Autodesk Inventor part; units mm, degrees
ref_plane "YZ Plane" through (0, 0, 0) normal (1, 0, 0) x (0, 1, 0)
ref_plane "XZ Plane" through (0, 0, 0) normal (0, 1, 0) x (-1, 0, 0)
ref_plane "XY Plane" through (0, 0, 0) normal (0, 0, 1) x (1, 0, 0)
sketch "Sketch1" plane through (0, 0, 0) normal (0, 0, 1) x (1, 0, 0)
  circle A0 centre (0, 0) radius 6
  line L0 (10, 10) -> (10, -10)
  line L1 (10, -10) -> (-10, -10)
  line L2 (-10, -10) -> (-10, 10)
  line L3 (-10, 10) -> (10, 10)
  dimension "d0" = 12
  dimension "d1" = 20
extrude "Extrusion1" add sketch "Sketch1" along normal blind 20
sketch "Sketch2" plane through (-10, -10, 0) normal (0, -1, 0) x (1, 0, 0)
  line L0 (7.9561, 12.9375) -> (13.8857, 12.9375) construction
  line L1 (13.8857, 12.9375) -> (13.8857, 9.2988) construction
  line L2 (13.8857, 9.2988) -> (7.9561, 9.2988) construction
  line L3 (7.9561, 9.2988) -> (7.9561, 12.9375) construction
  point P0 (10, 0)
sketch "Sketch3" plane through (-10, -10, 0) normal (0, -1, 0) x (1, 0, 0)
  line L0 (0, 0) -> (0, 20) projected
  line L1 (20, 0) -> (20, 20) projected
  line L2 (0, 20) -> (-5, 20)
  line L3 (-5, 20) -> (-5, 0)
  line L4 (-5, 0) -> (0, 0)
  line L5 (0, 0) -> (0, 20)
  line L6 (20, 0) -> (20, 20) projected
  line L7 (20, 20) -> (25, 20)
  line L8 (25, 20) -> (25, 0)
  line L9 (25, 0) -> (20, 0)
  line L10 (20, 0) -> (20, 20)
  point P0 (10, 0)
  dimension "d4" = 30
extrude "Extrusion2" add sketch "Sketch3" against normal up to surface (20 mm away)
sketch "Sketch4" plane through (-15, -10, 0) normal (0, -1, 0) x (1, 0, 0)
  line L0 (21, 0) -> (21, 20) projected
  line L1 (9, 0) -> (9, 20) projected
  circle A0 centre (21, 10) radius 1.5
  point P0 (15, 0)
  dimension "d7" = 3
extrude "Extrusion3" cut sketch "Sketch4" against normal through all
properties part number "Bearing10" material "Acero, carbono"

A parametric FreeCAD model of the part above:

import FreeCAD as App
import Part
import Sketcher
Q = App.Units.Quantity

doc = App.newDocument("Part")
params = doc.addObject("Spreadsheet::Sheet", "Params")
for row, (alias, value) in enumerate([
    ("sketch1_diameter", "12 mm"),
    ("sketch1_width", "20 mm"),
    ("pad1_length", "20 mm"),
    ("sketch2_width", "5 mm"),
    ("sketch2_height", "20 mm"),
    ("pad2_length", "20 mm"),
    ("sketch3_diameter", "3 mm"),
], start=1):
    params.set(f"A{row}", alias)
    params.set(f"B{row}", "=" + value)
    params.setAlias(f"B{row}", alias)

body = doc.addObject("PartDesign::Body", "Body")

# Sketch on XY plane
sketch1 = body.newObject("Sketcher::SketchObject", "Sketch")
sketch1.AttachmentSupport = (doc.getObject("XY_Plane"), [""])
sketch1.MapMode = "FlatFace"
sketch1.addGeometry(Part.LineSegment(App.Vector(10, -10, 0), App.Vector(10, 10, 0)), False)
sketch1.addGeometry(Part.LineSegment(App.Vector(10, 10, 0), App.Vector(-10, 10, 0)), False)
sketch1.addGeometry(Part.LineSegment(App.Vector(-10, 10, 0), App.Vector(-10, -10, 0)), False)
sketch1.addGeometry(Part.LineSegment(App.Vector(-10, -10, 0), App.Vector(10, -10, 0)), False)
sketch1.addGeometry(Part.Circle(App.Vector(0, 0, 0), App.Vector(0, 0, 1), 6), False)
sketch1.addConstraint(Sketcher.Constraint("Coincident", 0, 2, 1, 1))
sketch1.addConstraint(Sketcher.Constraint("Coincident", 1, 2, 2, 1))
sketch1.addConstraint(Sketcher.Constraint("Coincident", 2, 2, 3, 1))
sketch1.addConstraint(Sketcher.Constraint("Coincident", 3, 2, 0, 1))
sketch1.addConstraint(Sketcher.Constraint("Vertical", 0))
sketch1.addConstraint(Sketcher.Constraint("Horizontal", 1))
sketch1.addConstraint(Sketcher.Constraint("Vertical", 2))
sketch1.addConstraint(Sketcher.Constraint("Horizontal", 3))
sketch1.addConstraint(Sketcher.Constraint("Coincident", 4, 3, -1, 1))
sketch1.addConstraint(Sketcher.Constraint("Symmetric", 0, 2, 2, 2, -1, 1))
sketch1.addConstraint(Sketcher.Constraint("Equal", 3, 0))
sketch1.addConstraint(Sketcher.Constraint("Diameter", 4, Q("12 mm")))
sketch1.addConstraint(Sketcher.Constraint("DistanceX", 1, 2, 1, 1, Q("20 mm")))
sketch1.setExpression("Constraints[11]", "Params.sketch1_diameter")
sketch1.setExpression("Constraints[12]", "Params.sketch1_width")
pad1 = body.newObject("PartDesign::Pad", "Pad")
pad1.Profile = sketch1
pad1.setExpression("Length", "Params.pad1_length")

# Sketch on XZ plane
sketch2 = body.newObject("Sketcher::SketchObject", "Sketch001")
sketch2.AttachmentSupport = (doc.getObject("XZ_Plane"), [""])
sketch2.MapMode = "FlatFace"
sketch2.AttachmentOffset = App.Placement(App.Vector(0, 0, 10), App.Rotation())
sketch2.addGeometry(Part.LineSegment(App.Vector(-15, 0, 0), App.Vector(-10, 0, 0)), False)
sketch2.addGeometry(Part.LineSegment(App.Vector(-10, 0, 0), App.Vector(-10, 20, 0)), False)
sketch2.addGeometry(Part.LineSegment(App.Vector(-10, 20, 0), App.Vector(-15, 20, 0)), False)
sketch2.addGeometry(Part.LineSegment(App.Vector(-15, 20, 0), App.Vector(-15, 0, 0)), False)
sketch2.addGeometry(Part.LineSegment(App.Vector(10, 20, 0), App.Vector(10, 0, 0)), False)
sketch2.addGeometry(Part.LineSegment(App.Vector(10, 0, 0), App.Vector(15, 0, 0)), False)
sketch2.addGeometry(Part.LineSegment(App.Vector(15, 0, 0), App.Vector(15, 20, 0)), False)
sketch2.addGeometry(Part.LineSegment(App.Vector(15, 20, 0), App.Vector(10, 20, 0)), False)
sketch2.addConstraint(Sketcher.Constraint("Coincident", 0, 2, 1, 1))
sketch2.addConstraint(Sketcher.Constraint("Coincident", 1, 2, 2, 1))
sketch2.addConstraint(Sketcher.Constraint("Coincident", 2, 2, 3, 1))
sketch2.addConstraint(Sketcher.Constraint("Coincident", 3, 2, 0, 1))
sketch2.addConstraint(Sketcher.Constraint("Coincident", 4, 2, 5, 1))
sketch2.addConstraint(Sketcher.Constraint("Coincident", 5, 2, 6, 1))
sketch2.addConstraint(Sketcher.Constraint("Coincident", 6, 2, 7, 1))
sketch2.addConstraint(Sketcher.Constraint("Coincident", 7, 2, 4, 1))
sketch2.addConstraint(Sketcher.Constraint("Horizontal", 0))
sketch2.addConstraint(Sketcher.Constraint("Vertical", 1))
sketch2.addConstraint(Sketcher.Constraint("Horizontal", 2))
sketch2.addConstraint(Sketcher.Constraint("Vertical", 3))
sketch2.addConstraint(Sketcher.Constraint("Vertical", 4))
sketch2.addConstraint(Sketcher.Constraint("Horizontal", 5))
sketch2.addConstraint(Sketcher.Constraint("Vertical", 6))
sketch2.addConstraint(Sketcher.Constraint("Horizontal", 7))
sketch2.addConstraint(Sketcher.Constraint("Symmetric", 0, 2, 4, 2, -1, 1))
sketch2.addConstraint(Sketcher.Constraint("Symmetric", 3, 2, 5, 2, -2))
sketch2.addConstraint(Sketcher.Constraint("Horizontal", 2, 2, 6, 2))
sketch2.addConstraint(Sketcher.Constraint("DistanceX", 3, 2, 5, 2, Q("30 mm")))
sketch2.addConstraint(Sketcher.Constraint("DistanceX", 0, 1, 0, 2, Q("5 mm")))
sketch2.addConstraint(Sketcher.Constraint("DistanceY", 1, 1, 1, 2, Q("20 mm")))
sketch2.setExpression("Constraints[20]", "Params.sketch2_width")
sketch2.setExpression("Constraints[21]", "Params.sketch2_height")
pad2 = body.newObject("PartDesign::Pad", "Pad001")
pad2.Profile = sketch2
pad2.setExpression("Length", "Params.pad2_length")
pad2.Reversed = True

# Sketch on XZ plane
sketch3 = body.newObject("Sketcher::SketchObject", "Sketch002")
sketch3.AttachmentSupport = (doc.getObject("XZ_Plane"), [""])
sketch3.MapMode = "FlatFace"
sketch3.AttachmentOffset = App.Placement(App.Vector(0, 0, 10), App.Rotation())
sketch3.addGeometry(Part.Circle(App.Vector(6, 10, 0), App.Vector(0, 0, 1), 1.5), False)
sketch3.addConstraint(Sketcher.Constraint("Diameter", 0, Q("3 mm")))
sketch3.addConstraint(Sketcher.Constraint("DistanceX", -1, 1, 0, 3, Q("6 mm")))
sketch3.addConstraint(Sketcher.Constraint("DistanceY", -1, 1, 0, 3, Q("10 mm")))
sketch3.setExpression("Constraints[0]", "Params.sketch3_diameter")
pocket1 = body.newObject("PartDesign::Pocket", "Pocket")
pocket1.Profile = sketch3
pocket1.Type = "ThroughAll"

doc.recompute()
